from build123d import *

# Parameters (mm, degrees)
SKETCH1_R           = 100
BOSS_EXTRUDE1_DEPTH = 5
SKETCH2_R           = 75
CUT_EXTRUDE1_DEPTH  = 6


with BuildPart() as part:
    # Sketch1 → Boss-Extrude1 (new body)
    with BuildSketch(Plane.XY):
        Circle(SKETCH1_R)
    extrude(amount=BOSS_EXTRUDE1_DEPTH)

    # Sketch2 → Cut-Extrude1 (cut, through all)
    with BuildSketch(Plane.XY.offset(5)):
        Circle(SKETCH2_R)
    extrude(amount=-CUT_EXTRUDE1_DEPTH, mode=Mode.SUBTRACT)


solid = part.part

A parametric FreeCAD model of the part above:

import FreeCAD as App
import Part
import Sketcher
from FreeCAD import Vector

doc = App.newDocument("Part")
body = doc.addObject("PartDesign::Body", "Body")

sketch1 = body.newObject("Sketcher::SketchObject", "Sketch")
sketch1.AttachmentSupport = (doc.getObject("XY_Plane"), [""])
sketch1.MapMode = "FlatFace"
sketch1.addGeometry(Part.Circle(Vector(0, 0, 0), Vector(0, 0, 1), 100), False)
sketch1.addConstraint([
    Sketcher.Constraint("Coincident", 0, 3, -1, 1),
    Sketcher.Constraint("Diameter", 0, 200.0),
])
pad1 = body.newObject("PartDesign::Pad", "Pad")
pad1.Profile = sketch1
pad1.Length = 5

sketch2 = body.newObject("Sketcher::SketchObject", "Sketch001")
sketch2.AttachmentSupport = (doc.getObject("XY_Plane"), [""])
sketch2.MapMode = "FlatFace"
sketch2.AttachmentOffset = App.Placement(Vector(0, 0, 5), App.Rotation())
sketch2.addGeometry(Part.Circle(Vector(0, 0, 0), Vector(0, 0, 1), 75), False)
sketch2.addConstraint([
    Sketcher.Constraint("Coincident", 0, 3, -1, 1),
    Sketcher.Constraint("Diameter", 0, 150.0),
])
pocket1 = body.newObject("PartDesign::Pocket", "Pocket")
pocket1.Profile = sketch2
pocket1.Type = "ThroughAll"

doc.recompute()
